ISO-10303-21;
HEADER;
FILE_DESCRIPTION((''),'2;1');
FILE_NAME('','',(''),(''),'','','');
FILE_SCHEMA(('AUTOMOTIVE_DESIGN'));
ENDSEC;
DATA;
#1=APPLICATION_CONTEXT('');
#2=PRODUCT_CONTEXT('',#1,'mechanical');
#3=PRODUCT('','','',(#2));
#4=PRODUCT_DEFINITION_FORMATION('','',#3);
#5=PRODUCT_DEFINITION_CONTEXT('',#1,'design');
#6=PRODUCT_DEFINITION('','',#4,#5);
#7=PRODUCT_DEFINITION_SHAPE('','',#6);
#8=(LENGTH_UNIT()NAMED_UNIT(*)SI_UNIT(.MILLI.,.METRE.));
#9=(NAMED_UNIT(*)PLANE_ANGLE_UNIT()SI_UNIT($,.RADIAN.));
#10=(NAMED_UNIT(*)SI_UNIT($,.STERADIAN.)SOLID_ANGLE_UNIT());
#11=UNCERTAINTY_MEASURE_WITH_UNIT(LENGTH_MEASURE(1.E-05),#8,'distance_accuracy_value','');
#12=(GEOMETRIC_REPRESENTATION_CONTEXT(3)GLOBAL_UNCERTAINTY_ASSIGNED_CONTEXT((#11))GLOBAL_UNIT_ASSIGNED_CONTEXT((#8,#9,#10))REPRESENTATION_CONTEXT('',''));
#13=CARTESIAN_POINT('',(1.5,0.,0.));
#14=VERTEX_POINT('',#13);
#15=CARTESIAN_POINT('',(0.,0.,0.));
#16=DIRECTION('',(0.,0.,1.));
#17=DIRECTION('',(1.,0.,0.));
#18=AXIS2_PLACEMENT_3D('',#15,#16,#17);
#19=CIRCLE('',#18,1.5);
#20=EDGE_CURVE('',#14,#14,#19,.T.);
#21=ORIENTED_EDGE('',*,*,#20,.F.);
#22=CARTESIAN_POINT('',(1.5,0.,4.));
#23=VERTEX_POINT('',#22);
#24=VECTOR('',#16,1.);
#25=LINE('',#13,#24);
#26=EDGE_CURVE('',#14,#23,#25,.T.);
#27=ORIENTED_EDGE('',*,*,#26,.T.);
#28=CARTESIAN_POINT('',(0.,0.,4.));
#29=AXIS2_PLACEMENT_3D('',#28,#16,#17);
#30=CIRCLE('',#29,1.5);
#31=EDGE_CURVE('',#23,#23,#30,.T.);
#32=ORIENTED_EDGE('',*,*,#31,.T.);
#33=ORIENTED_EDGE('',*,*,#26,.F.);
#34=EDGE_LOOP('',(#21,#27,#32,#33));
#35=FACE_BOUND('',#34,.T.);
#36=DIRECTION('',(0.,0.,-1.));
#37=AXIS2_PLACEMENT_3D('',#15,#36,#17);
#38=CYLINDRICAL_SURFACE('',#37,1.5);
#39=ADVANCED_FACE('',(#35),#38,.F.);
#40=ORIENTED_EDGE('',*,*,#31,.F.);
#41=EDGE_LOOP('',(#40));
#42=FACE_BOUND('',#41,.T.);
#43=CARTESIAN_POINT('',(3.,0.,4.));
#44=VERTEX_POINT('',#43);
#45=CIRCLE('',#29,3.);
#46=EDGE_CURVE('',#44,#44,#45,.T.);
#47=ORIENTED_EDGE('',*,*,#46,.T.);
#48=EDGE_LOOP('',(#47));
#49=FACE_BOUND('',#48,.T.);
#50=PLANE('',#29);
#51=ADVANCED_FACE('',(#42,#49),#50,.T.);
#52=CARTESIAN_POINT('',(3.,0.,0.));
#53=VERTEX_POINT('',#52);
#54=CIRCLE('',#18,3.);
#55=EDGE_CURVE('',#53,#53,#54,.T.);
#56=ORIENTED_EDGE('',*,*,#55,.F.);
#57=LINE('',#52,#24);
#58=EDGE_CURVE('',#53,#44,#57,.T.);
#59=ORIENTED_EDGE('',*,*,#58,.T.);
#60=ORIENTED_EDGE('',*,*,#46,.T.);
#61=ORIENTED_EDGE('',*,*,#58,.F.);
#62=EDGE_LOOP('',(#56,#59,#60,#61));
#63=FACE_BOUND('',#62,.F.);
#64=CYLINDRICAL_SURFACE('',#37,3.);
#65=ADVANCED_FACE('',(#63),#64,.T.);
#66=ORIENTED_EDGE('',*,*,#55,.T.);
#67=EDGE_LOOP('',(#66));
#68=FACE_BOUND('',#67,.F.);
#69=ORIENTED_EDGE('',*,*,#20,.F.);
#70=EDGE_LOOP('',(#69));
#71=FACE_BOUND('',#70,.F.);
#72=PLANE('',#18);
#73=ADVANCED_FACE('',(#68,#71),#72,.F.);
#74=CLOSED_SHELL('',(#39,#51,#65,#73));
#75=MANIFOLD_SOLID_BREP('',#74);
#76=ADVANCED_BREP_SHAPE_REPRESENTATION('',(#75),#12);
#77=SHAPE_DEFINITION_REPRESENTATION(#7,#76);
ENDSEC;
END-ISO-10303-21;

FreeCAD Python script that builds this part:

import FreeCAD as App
import Part
import Sketcher

V = App.Vector
Q = App.Units.Quantity

doc = App.newDocument("Part")
params = doc.addObject("Spreadsheet::Sheet", "Params")
for row, (alias, value) in enumerate([
    ("sketch1_diameter", "6 mm"),
    ("sketch1_diameter2", "3 mm"),
    ("pad1_length", "4 mm"),
], start=1):
    params.set(f"A{row}", alias)
    params.set(f"B{row}", "=" + value)
    params.setAlias(f"B{row}", alias)

body = doc.addObject("PartDesign::Body", "Body")

# Sketch on XY plane
sketch1 = body.newObject("Sketcher::SketchObject", "Sketch")
sketch1.AttachmentSupport = (doc.getObject("XY_Plane"), [""])
sketch1.MapMode = "FlatFace"
sketch1.addGeometry(Part.Circle(V(0, 0, 0), V(0, 0, 1), 3), False)
sketch1.addGeometry(Part.Circle(V(0, 0, 0), V(0, 0, 1), 1.5), False)
sketch1.addConstraint(Sketcher.Constraint("Coincident", 0, 3, -1, 1))
sketch1.addConstraint(Sketcher.Constraint("Coincident", 1, 3, -1, 1))
sketch1.addConstraint(Sketcher.Constraint("Diameter", 0, Q("6 mm")))
sketch1.addConstraint(Sketcher.Constraint("Diameter", 1, Q("3 mm")))
sketch1.setExpression("Constraints[2]", "Params.sketch1_diameter")
sketch1.setExpression("Constraints[3]", "Params.sketch1_diameter2")
pad1 = body.newObject("PartDesign::Pad", "Pad")
pad1.Profile = sketch1
pad1.setExpression("Length", "Params.pad1_length")

doc.recompute()
